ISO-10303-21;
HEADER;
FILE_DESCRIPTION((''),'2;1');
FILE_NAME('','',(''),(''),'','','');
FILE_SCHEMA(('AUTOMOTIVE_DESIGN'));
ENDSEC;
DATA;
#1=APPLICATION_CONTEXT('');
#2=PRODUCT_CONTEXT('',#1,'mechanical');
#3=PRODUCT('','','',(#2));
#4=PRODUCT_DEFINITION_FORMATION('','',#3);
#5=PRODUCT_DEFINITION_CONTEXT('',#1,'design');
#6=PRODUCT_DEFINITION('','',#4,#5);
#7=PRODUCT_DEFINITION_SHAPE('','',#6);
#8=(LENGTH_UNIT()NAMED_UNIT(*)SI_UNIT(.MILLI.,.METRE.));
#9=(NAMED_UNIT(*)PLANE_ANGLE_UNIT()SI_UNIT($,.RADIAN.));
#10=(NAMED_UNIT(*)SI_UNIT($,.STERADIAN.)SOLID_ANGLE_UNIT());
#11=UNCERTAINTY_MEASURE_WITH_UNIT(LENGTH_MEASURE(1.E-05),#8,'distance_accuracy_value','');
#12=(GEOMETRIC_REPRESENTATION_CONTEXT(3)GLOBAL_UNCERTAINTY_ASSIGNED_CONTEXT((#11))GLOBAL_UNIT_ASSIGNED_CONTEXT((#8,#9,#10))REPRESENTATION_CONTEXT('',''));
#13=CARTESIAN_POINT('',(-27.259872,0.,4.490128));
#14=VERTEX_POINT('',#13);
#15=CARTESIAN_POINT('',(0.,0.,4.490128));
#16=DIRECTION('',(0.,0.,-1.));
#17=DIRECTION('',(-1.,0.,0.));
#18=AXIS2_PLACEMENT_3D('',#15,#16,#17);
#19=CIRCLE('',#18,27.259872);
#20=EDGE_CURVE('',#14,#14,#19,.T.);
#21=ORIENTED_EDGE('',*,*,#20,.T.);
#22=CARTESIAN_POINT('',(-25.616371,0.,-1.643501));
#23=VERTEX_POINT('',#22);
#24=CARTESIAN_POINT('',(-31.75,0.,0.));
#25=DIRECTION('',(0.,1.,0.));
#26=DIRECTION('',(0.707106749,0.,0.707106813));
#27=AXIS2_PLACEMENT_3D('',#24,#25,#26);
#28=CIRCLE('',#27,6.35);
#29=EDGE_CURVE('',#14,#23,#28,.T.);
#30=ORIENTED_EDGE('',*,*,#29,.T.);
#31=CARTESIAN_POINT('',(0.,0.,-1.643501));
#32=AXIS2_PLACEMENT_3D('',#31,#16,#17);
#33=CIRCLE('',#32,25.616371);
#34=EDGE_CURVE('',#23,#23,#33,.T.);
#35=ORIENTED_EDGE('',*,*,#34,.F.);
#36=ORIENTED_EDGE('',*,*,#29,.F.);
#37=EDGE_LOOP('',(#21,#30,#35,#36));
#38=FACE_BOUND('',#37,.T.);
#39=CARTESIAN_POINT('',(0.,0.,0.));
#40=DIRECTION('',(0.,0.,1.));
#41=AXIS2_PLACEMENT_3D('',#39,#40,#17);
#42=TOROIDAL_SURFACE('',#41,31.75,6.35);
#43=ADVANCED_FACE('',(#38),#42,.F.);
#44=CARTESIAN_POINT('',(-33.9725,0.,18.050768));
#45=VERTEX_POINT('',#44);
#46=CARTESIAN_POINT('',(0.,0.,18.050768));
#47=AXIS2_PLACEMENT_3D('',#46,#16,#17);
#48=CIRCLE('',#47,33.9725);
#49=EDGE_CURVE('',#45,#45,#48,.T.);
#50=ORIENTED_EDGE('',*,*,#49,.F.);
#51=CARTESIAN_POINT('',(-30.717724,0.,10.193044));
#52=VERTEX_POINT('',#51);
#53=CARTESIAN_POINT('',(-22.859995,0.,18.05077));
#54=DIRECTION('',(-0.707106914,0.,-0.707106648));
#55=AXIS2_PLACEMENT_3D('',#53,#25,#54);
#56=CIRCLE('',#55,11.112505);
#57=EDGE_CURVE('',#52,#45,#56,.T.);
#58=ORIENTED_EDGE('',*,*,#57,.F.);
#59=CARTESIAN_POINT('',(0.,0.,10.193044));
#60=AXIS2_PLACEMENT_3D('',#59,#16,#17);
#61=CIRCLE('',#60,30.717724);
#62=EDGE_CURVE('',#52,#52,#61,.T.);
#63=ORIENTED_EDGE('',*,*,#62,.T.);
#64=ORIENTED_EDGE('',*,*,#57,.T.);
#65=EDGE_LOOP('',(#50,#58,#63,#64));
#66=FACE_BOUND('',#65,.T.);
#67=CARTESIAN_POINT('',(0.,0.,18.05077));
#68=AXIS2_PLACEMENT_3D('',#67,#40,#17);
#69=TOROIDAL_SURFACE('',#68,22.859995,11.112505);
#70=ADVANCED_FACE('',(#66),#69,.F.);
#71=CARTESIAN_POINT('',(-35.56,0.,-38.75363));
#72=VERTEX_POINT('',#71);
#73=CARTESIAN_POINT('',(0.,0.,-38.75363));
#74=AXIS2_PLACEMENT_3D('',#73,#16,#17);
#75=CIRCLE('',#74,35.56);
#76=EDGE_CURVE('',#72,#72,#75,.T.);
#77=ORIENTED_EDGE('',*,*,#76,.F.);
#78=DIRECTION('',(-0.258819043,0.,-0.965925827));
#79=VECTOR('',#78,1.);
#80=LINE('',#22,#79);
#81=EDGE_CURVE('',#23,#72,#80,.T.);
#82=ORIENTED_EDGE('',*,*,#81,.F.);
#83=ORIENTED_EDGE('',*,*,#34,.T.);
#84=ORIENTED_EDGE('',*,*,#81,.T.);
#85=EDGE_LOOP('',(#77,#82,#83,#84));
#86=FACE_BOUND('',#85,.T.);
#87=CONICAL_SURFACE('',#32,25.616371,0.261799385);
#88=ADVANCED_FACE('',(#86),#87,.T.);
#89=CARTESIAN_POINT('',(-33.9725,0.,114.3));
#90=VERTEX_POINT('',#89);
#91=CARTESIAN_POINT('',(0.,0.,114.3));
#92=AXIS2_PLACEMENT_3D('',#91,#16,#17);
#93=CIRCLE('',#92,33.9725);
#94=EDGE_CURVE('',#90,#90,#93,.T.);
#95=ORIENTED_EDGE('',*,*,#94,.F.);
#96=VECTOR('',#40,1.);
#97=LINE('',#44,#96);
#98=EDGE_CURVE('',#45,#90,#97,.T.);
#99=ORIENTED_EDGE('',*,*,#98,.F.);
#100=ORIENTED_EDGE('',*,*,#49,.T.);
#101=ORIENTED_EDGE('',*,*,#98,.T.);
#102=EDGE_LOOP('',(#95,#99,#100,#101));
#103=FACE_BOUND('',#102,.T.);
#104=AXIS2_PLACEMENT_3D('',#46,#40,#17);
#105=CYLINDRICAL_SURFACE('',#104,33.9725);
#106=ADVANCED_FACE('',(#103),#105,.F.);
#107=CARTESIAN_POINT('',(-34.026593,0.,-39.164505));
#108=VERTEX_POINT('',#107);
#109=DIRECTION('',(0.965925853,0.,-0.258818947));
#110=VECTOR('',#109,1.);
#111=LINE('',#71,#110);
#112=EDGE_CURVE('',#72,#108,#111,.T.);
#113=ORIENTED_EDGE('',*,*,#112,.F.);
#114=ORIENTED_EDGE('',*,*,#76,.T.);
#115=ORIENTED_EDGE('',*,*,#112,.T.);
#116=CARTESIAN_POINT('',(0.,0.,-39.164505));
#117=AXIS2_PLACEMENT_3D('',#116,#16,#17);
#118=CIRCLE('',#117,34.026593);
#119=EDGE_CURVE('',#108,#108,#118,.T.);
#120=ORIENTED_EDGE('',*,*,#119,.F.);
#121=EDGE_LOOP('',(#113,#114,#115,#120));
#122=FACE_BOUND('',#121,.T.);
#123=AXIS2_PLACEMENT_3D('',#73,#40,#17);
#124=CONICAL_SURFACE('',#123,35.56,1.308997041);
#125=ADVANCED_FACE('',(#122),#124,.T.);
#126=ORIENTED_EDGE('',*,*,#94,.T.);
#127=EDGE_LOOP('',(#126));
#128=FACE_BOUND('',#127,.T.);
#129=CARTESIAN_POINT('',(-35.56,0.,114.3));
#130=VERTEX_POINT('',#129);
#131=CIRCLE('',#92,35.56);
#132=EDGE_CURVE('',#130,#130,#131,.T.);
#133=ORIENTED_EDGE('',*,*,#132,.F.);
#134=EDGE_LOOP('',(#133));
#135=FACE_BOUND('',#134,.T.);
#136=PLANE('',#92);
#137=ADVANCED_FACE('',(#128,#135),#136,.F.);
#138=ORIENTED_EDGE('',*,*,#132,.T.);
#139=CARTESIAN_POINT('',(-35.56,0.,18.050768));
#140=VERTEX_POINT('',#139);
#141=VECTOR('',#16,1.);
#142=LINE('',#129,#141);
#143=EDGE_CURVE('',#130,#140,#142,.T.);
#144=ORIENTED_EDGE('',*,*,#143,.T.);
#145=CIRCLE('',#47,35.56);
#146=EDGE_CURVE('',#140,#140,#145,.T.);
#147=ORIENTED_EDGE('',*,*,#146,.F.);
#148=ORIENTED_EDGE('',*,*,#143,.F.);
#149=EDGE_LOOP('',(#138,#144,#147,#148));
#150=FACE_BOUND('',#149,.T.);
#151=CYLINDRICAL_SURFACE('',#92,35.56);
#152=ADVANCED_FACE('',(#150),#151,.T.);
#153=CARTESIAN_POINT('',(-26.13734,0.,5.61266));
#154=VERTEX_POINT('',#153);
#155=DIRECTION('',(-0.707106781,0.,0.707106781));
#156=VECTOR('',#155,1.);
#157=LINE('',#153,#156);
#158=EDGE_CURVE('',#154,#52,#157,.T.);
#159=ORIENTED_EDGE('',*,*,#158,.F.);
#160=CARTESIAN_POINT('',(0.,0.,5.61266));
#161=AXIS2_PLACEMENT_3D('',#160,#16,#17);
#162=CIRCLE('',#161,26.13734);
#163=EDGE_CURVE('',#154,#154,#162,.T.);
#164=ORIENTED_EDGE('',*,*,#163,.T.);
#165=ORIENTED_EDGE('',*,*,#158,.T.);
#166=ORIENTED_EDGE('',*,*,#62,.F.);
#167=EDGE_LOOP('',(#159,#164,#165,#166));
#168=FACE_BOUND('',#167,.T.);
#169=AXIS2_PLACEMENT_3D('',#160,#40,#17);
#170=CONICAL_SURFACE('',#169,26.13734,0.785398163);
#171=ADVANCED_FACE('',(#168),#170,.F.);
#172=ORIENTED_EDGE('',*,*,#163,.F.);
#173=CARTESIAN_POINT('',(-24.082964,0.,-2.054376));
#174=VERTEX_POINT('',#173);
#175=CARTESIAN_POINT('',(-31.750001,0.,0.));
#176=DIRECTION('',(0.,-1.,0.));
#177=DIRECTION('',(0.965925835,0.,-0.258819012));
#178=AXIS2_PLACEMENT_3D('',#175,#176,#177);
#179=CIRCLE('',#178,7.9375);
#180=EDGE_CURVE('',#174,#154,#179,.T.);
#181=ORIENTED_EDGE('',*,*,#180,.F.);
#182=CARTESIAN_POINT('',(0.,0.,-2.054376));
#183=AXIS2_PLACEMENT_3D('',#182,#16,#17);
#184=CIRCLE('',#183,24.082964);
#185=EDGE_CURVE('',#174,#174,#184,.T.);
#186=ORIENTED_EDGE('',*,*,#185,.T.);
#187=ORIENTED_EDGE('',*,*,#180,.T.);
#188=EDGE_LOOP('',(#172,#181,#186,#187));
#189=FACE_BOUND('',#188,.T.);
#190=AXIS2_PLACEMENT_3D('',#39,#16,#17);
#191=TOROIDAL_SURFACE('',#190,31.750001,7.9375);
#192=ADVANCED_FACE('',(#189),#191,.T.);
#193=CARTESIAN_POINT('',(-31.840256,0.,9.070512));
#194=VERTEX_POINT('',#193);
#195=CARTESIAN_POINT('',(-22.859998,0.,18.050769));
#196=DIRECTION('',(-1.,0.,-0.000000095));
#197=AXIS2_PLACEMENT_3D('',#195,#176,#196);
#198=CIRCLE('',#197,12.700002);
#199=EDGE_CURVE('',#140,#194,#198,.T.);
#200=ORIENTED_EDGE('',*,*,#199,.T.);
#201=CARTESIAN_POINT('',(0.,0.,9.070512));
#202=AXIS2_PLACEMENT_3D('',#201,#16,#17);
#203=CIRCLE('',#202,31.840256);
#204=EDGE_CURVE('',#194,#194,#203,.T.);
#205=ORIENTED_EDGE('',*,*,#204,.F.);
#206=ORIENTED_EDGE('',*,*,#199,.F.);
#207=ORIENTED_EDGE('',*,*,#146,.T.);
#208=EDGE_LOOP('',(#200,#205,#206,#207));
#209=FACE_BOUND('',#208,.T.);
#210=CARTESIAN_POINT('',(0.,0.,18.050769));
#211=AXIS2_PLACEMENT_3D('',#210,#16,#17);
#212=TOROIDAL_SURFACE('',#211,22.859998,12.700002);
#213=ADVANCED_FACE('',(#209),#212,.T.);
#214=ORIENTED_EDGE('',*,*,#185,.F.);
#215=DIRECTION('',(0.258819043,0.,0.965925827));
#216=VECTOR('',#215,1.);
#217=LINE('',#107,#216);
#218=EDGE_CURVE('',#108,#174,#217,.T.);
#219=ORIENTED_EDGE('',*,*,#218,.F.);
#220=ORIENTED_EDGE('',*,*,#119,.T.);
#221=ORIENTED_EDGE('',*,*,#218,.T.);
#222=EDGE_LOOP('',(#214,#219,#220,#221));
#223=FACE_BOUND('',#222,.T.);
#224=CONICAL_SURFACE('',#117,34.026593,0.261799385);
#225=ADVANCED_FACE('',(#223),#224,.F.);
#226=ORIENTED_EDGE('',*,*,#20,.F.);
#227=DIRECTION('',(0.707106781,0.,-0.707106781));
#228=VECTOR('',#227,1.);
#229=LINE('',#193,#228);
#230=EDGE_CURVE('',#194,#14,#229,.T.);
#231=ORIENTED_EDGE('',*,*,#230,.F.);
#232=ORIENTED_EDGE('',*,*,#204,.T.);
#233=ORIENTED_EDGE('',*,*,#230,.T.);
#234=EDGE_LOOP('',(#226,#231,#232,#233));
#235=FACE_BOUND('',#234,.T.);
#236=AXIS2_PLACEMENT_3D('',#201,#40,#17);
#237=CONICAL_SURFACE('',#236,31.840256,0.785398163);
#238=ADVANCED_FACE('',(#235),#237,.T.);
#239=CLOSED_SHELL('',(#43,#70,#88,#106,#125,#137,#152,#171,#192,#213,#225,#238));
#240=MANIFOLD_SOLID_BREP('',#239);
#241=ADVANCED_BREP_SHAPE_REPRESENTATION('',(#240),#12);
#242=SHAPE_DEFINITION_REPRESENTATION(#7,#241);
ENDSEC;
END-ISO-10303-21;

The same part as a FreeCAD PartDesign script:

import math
import FreeCAD as App
import Part
import Sketcher
Q = App.Units.Quantity

doc = App.newDocument("Part")
body = doc.addObject("PartDesign::Body", "Body")

# Sketch on XZ plane
sketch1 = doc.addObject("Sketcher::SketchObject", "Sketch")
body.addObject(sketch1)
sketch1.AttachmentSupport = (doc.XZ_Plane, [""])
sketch1.MapMode = "FlatFace"
sketch1.addGeometry(Part.LineSegment(App.Vector(-34, 114.3, 0), App.Vector(-35.6, 114.3, 0)), False)
sketch1.addGeometry(Part.LineSegment(App.Vector(-35.6, 114.3, 0), App.Vector(-35.6, 18.1, 0)), False)
sketch1.addGeometry(Part.ArcOfCircle(Part.Circle(App.Vector(-22.9, 18.1, 0), App.Vector(0, 0, 1), 12.7), math.radians(-180), math.radians(-135)), False)
sketch1.addGeometry(Part.LineSegment(App.Vector(-31.8, 9.1, 0), App.Vector(-27.3, 4.5, 0)), False)
sketch1.addGeometry(Part.ArcOfCircle(Part.Circle(App.Vector(-31.7, 0, 0), App.Vector(0, 0, 1), 6.3), math.radians(-15), math.radians(45)), False)
sketch1.addGeometry(Part.LineSegment(App.Vector(-25.6, -1.6, 0), App.Vector(-35.6, -38.8, 0)), False)
sketch1.addGeometry(Part.LineSegment(App.Vector(-35.6, -38.8, 0), App.Vector(-34, -39.2, 0)), False)
sketch1.addGeometry(Part.LineSegment(App.Vector(-34, -39.2, 0), App.Vector(-24.1, -2.1, 0)), False)
sketch1.addGeometry(Part.ArcOfCircle(Part.Circle(App.Vector(-31.8, 0, 0), App.Vector(0, 0, 1), 7.9), math.radians(-15), math.radians(45)), False)
sketch1.addGeometry(Part.LineSegment(App.Vector(-26.1, 5.6, 0), App.Vector(-30.7, 10.2, 0)), False)
sketch1.addGeometry(Part.ArcOfCircle(Part.Circle(App.Vector(-22.9, 18.1, 0), App.Vector(0, 0, 1), 11.1), math.radians(-180), math.radians(-135)), False)
sketch1.addGeometry(Part.LineSegment(App.Vector(-34, 18.1, 0), App.Vector(-34, 114.3, 0)), False)
sketch1.addConstraint(Sketcher.Constraint("Coincident", 0, 2, 1, 1))
sketch1.addConstraint(Sketcher.Constraint("Tangent", 1, 2, 2, 1))
sketch1.addConstraint(Sketcher.Constraint("Tangent", 2, 2, 3, 1))
sketch1.addConstraint(Sketcher.Constraint("Tangent", 3, 2, 4, 2))
sketch1.addConstraint(Sketcher.Constraint("Tangent", 4, 1, 5, 1))
sketch1.addConstraint(Sketcher.Constraint("Coincident", 5, 2, 6, 1))
sketch1.addConstraint(Sketcher.Constraint("Coincident", 6, 2, 7, 1))
sketch1.addConstraint(Sketcher.Constraint("Tangent", 7, 2, 8, 1))
sketch1.addConstraint(Sketcher.Constraint("Tangent", 8, 2, 9, 1))
sketch1.addConstraint(Sketcher.Constraint("Tangent", 9, 2, 10, 2))
sketch1.addConstraint(Sketcher.Constraint("Tangent", 10, 1, 11, 1))
sketch1.addConstraint(Sketcher.Constraint("Coincident", 11, 2, 0, 1))
sketch1.addConstraint(Sketcher.Constraint("Horizontal", 0))
sketch1.addConstraint(Sketcher.Constraint("Vertical", 1))
sketch1.addConstraint(Sketcher.Constraint("Vertical", 11))
sketch1.addConstraint(Sketcher.Constraint("Coincident", 8, 3, 4, 3))
sketch1.addConstraint(Sketcher.Constraint("Coincident", 10, 3, 2, 3))
sketch1.addConstraint(Sketcher.Constraint("PointOnObject", 4, 3, -1))
sketch1.addConstraint(Sketcher.Constraint("Perpendicular", 5, 6))
sketch1.addConstraint(Sketcher.Constraint("Perpendicular", 6, 7))
sketch1.addConstraint(Sketcher.Constraint("Parallel", 3, 9))
sketch1.addConstraint(Sketcher.Constraint("Vertical", 1, 2, 5, 2))
sketch1.addConstraint(Sketcher.Constraint("Radius", 2, Q("0.5000001 in")))
sketch1.addConstraint(Sketcher.Constraint("Radius", 4, Q("0.25 in")))
sketch1.addConstraint(Sketcher.Constraint("Angle", 3, Q("-45 deg")))
sketch1.addConstraint(Sketcher.Constraint("Angle", 5, Q("-105 deg")))
sketch1.addConstraint(Sketcher.Constraint("Radius", 8, Q("0.3125 in")))
sketch1.addConstraint(Sketcher.Constraint("DistanceX", 2, 3, -1, 1, Q("0.8999999 in")))
sketch1.addConstraint(Sketcher.Constraint("DistanceY", -1, 1, 0, 2, Q("4.5 in")))
sketch1.addConstraint(Sketcher.Constraint("DistanceX", 4, 3, -1, 1, Q("1.25 in")))
revolution = doc.addObject("PartDesign::Revolution", "Revolution")
body.addObject(revolution)
revolution.Profile = sketch1
revolution.ReferenceAxis = (sketch1, ["V_Axis"])
revolution.Angle = 360

doc.recompute()
